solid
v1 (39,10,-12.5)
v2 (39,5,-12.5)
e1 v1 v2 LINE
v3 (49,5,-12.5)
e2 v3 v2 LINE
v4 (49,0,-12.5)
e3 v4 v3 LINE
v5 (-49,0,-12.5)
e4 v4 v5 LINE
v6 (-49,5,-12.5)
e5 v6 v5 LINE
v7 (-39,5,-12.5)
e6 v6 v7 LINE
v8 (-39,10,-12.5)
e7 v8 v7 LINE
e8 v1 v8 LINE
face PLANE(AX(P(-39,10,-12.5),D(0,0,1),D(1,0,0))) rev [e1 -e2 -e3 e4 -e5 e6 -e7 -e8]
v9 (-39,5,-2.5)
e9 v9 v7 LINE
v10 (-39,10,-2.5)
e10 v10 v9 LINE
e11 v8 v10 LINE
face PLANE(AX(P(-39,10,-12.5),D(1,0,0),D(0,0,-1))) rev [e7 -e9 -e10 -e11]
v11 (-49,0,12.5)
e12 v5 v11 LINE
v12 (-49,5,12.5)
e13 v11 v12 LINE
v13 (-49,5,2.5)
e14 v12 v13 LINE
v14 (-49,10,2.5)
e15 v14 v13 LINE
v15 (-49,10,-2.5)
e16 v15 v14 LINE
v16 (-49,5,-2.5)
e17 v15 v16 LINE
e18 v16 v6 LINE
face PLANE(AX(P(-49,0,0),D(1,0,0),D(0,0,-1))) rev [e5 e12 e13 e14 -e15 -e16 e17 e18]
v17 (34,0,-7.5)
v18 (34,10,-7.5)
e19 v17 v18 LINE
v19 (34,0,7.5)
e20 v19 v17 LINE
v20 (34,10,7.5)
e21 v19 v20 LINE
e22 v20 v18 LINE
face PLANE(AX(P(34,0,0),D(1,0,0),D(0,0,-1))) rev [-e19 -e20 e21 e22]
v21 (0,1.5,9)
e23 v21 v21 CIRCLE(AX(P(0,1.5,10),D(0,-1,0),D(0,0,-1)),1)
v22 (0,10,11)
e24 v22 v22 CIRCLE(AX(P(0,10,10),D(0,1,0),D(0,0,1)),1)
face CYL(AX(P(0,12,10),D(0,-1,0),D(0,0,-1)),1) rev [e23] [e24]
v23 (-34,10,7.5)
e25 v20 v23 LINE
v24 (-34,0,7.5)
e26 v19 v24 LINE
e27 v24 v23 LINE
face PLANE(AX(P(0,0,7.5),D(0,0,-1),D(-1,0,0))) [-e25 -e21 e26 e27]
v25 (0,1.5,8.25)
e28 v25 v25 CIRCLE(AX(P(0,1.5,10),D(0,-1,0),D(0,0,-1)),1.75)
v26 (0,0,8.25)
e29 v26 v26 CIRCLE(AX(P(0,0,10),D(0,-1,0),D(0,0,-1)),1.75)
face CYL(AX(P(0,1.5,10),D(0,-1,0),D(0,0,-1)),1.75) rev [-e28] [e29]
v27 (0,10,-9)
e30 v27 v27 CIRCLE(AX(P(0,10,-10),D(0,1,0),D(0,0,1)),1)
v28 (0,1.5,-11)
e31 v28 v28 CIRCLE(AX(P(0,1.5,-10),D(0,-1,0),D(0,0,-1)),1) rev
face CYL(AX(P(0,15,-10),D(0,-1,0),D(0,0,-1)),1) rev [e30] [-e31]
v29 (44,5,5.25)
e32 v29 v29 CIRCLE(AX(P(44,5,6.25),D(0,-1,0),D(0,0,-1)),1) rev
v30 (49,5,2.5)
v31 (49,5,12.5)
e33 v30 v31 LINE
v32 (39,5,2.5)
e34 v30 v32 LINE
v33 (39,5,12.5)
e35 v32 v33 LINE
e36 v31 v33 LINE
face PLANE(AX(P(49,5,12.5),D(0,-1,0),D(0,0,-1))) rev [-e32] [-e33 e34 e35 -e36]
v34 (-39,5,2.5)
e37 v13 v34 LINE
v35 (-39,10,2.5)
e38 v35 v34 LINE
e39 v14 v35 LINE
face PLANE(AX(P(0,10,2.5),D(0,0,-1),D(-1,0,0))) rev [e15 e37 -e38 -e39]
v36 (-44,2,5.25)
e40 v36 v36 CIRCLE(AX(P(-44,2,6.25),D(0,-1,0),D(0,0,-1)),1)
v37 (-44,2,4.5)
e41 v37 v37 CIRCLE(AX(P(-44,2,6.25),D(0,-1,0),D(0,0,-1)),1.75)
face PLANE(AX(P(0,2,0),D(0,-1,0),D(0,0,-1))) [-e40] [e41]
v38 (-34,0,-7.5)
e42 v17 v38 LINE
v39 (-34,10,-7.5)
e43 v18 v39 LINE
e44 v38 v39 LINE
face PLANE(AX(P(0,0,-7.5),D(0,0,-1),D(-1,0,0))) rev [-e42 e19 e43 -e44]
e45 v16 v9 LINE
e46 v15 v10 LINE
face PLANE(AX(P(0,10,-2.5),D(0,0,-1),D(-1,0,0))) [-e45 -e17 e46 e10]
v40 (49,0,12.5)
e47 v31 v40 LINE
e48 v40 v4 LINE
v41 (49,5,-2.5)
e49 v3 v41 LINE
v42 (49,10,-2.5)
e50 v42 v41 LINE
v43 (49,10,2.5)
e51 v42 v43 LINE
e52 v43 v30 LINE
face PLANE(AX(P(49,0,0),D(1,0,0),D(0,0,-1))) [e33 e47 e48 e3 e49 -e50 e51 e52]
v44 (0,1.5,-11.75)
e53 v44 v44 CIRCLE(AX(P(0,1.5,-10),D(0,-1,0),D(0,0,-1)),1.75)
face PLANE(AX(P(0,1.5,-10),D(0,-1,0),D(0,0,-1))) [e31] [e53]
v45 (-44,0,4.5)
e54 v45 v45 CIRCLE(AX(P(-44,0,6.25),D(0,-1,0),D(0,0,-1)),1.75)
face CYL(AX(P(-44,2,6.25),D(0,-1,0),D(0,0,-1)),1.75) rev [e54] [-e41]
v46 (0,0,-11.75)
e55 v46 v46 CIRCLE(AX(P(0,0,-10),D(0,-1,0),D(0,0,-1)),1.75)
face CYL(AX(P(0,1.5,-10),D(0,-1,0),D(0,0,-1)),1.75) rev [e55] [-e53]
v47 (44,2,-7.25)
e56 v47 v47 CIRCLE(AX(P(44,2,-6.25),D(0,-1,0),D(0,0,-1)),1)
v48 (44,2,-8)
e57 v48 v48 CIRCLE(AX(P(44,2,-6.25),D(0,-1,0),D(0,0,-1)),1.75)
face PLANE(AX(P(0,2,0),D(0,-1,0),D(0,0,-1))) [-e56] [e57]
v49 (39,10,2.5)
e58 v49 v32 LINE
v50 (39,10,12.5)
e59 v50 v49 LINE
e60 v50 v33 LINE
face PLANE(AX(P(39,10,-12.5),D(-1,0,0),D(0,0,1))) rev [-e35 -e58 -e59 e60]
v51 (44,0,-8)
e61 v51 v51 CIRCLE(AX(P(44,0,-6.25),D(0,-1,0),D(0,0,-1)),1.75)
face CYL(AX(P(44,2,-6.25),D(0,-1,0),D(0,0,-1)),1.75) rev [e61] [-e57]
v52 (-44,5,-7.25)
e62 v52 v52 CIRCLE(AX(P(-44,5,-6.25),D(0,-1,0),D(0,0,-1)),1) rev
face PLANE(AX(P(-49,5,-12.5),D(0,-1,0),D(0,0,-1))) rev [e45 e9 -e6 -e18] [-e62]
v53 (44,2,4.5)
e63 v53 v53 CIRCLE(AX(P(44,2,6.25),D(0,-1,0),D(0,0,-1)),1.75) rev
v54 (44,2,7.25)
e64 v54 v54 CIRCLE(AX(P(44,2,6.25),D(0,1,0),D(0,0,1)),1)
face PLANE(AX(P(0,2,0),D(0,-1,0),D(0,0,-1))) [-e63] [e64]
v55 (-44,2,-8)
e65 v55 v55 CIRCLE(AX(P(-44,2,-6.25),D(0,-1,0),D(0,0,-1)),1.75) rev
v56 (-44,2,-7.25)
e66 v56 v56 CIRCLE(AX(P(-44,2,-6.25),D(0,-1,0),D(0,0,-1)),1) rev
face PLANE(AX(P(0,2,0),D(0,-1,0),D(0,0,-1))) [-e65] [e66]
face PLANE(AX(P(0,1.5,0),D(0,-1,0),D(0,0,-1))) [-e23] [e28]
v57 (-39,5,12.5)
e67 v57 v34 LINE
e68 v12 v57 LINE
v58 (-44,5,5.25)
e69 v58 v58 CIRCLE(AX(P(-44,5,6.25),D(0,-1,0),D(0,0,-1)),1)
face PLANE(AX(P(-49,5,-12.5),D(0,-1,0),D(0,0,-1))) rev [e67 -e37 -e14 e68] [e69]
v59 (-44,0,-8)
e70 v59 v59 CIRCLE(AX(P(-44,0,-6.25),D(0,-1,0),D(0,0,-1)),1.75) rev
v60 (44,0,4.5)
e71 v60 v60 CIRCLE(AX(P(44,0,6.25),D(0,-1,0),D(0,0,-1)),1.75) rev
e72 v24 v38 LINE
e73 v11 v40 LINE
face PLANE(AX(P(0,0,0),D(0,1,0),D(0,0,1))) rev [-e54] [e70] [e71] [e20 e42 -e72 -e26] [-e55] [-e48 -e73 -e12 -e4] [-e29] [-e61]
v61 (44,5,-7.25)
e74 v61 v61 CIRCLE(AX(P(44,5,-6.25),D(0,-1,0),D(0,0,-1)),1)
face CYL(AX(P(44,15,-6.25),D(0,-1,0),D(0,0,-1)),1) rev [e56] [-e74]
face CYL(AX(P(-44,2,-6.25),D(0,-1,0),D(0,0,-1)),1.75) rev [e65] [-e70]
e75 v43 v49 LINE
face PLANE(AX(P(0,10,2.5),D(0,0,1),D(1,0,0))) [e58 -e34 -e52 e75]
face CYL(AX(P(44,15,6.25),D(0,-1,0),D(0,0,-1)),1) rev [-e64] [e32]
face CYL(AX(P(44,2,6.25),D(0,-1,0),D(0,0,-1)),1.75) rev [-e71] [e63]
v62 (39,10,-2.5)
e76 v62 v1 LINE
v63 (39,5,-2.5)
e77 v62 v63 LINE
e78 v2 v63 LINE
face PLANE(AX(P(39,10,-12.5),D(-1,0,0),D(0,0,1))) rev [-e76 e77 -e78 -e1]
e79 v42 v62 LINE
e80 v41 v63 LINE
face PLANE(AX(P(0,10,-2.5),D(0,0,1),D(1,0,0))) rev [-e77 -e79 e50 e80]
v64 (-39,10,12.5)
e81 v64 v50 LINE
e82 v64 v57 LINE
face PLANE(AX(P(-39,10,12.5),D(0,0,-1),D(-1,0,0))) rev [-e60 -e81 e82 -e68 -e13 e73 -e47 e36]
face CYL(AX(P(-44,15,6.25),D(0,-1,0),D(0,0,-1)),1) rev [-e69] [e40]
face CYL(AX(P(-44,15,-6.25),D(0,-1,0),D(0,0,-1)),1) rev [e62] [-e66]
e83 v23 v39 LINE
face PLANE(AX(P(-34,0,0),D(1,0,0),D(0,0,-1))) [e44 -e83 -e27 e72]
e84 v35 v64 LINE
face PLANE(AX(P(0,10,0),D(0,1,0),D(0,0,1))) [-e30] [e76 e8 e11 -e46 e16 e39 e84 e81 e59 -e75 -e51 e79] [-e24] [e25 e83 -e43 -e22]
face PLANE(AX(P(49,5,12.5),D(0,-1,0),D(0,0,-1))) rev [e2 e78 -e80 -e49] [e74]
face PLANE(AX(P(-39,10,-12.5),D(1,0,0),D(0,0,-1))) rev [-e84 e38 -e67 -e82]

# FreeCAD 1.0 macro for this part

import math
import FreeCAD as App
import Part
import Sketcher
from FreeCAD import Vector


def add_polygon(sketch, points):
    """Adds a closed chain of lines whose ends are joined by coincident constraints."""
    first, n = sketch.GeometryCount, len(points)
    for a, b in zip(points, points[1:] + points[:1]):
        sketch.addGeometry(Part.LineSegment(App.Vector(*a, 0), App.Vector(*b, 0)), False)
    for i in range(n):
        sketch.addConstraint(Sketcher.Constraint("Coincident", first + i, 2, first + (i + 1) % n, 1))

doc = App.newDocument("Part")
params = doc.addObject("Spreadsheet::Sheet", "Params")
for row, (alias, value) in enumerate([
    ("sketch1_width", "78 mm"),
    ("sketch1_height", "25 mm"),
    ("pad1_length", "10 mm"),
    ("sketch2_width", "68 mm"),
    ("sketch2_height", "15 mm"),
    ("pocket1_length", "10 mm"),
    ("sketch3_width", "5 mm"),
    ("sketch3_height", "25 mm"),
    ("pad2_length", "10 mm"),
    ("sketch4_width", "5 mm"),
    ("sketch4_height", "25 mm"),
    ("pad3_length", "10 mm"),
    ("sketch5_width", "10 mm"),
    ("sketch5_height", "5 mm"),
    ("pad4_length", "5 mm"),
    ("sketch6_diameter", "3.5 mm"),
    ("pocket2_length", "2 mm"),
    ("sketch7_diameter", "2 mm"),
    ("pocket3_length", "13 mm"),
    ("sketch8_radius", "1.75 mm"),
    ("pocket4_length", "1.5 mm"),
    ("sketch9_diameter", "2 mm"),
    ("pocket5_length", "10.5 mm"),
    ("sketch10_diameter", "2 mm"),
    ("pocket6_length", "15 mm"),
    ("sketch11_diameter", "3.5 mm"),
    ("pocket7_length", "1.5 mm"),
], start=1):
    params.set(f"A{row}", alias)
    params.set(f"B{row}", "=" + value)
    params.setAlias(f"B{row}", alias)

body = doc.addObject("PartDesign::Body", "Body")

# Sketch on XZ plane
sketch1 = body.newObject("Sketcher::SketchObject", "Sketch")
sketch1.AttachmentSupport = (doc.getObject("XZ_Plane"), [""])
sketch1.MapMode = "FlatFace"
add_polygon(sketch1, [(-39, -12.5), (-39, 12.5), (39, 12.5), (39, -12.5)])  # lines 0-3
sketch1.addConstraint([
    Sketcher.Constraint("Vertical", 0),
    Sketcher.Constraint("Horizontal", 1),
    Sketcher.Constraint("Vertical", 2),
    Sketcher.Constraint("Horizontal", 3),
    Sketcher.Constraint("Symmetric", 0, 2, 2, 2, -1, 1),
    Sketcher.Constraint("DistanceX", 1, 1, 1, 2, 78.0),
    Sketcher.Constraint("DistanceY", 0, 1, 0, 2, 25.0),
])
sketch1.setExpression("Constraints[9]", "Params.sketch1_width")
sketch1.setExpression("Constraints[10]", "Params.sketch1_height")
pad1 = body.newObject("PartDesign::Pad", "Pad")
pad1.Profile = sketch1
pad1.setExpression("Length", "Params.pad1_length")
pad1.Reversed = True

# Sketch on XZ plane
sketch2 = body.newObject("Sketcher::SketchObject", "Sketch001")
sketch2.AttachmentSupport = (doc.getObject("XZ_Plane"), [""])
sketch2.MapMode = "FlatFace"
sketch2.AttachmentOffset = App.Placement(Vector(0, 0, -10), App.Rotation())
add_polygon(sketch2, [(-34, -7.5), (-34, 7.5), (34, 7.5), (34, -7.5)])  # lines 0-3
sketch2.addConstraint([
    Sketcher.Constraint("Vertical", 0),
    Sketcher.Constraint("Horizontal", 1),
    Sketcher.Constraint("Vertical", 2),
    Sketcher.Constraint("Horizontal", 3),
    Sketcher.Constraint("Symmetric", 0, 2, 2, 2, -1, 1),
    Sketcher.Constraint("DistanceX", 1, 1, 1, 2, 68.0),
    Sketcher.Constraint("DistanceY", 0, 1, 0, 2, 15.0),
])
sketch2.setExpression("Constraints[9]", "Params.sketch2_width")
sketch2.setExpression("Constraints[10]", "Params.sketch2_height")
pocket1 = body.newObject("PartDesign::Pocket", "Pocket")
pocket1.Profile = sketch2
pocket1.setExpression("Length", "Params.pocket1_length")
pocket1.Reversed = True

# Sketch on YZ plane
sketch3 = body.newObject("Sketcher::SketchObject", "Sketch002")
sketch3.AttachmentSupport = (doc.getObject("YZ_Plane"), [""])
sketch3.MapMode = "FlatFace"
sketch3.AttachmentOffset = App.Placement(Vector(0, 0, -39), App.Rotation())
add_polygon(sketch3, [(5, -12.5), (0, -12.5), (0, 12.5), (5, 12.5)])  # lines 0-3
sketch3.addConstraint([
    Sketcher.Constraint("Horizontal", 0),
    Sketcher.Constraint("Vertical", 1),
    Sketcher.Constraint("Horizontal", 2),
    Sketcher.Constraint("Vertical", 3),
    Sketcher.Constraint("Symmetric", 0, 2, 1, 2, -1, 1),
    Sketcher.Constraint("DistanceX", 0, 2, 0, 1, 5.0),
    Sketcher.Constraint("DistanceY", 1, 1, 1, 2, 25.0),
])
sketch3.setExpression("Constraints[9]", "Params.sketch3_width")
sketch3.setExpression("Constraints[10]", "Params.sketch3_height")
pad2 = body.newObject("PartDesign::Pad", "Pad001")
pad2.Profile = sketch3
pad2.setExpression("Length", "Params.pad2_length")
pad2.Reversed = True

# Sketch on YZ plane
sketch4 = body.newObject("Sketcher::SketchObject", "Sketch003")
sketch4.AttachmentSupport = (doc.getObject("YZ_Plane"), [""])
sketch4.MapMode = "FlatFace"
sketch4.AttachmentOffset = App.Placement(Vector(0, 0, 39), App.Rotation())
add_polygon(sketch4, [(5, 12.5), (0, 12.5), (0, -12.5), (5, -12.5)])  # lines 0-3
sketch4.addConstraint([
    Sketcher.Constraint("Horizontal", 0),
    Sketcher.Constraint("Vertical", 1),
    Sketcher.Constraint("Horizontal", 2),
    Sketcher.Constraint("Vertical", 3),
    Sketcher.Constraint("Symmetric", 0, 2, 1, 2, -1, 1),
    Sketcher.Constraint("DistanceX", 0, 2, 0, 1, 5.0),
    Sketcher.Constraint("DistanceY", 1, 2, 1, 1, 25.0),
])
sketch4.setExpression("Constraints[9]", "Params.sketch4_width")
sketch4.setExpression("Constraints[10]", "Params.sketch4_height")
pad3 = body.newObject("PartDesign::Pad", "Pad002")
pad3.Profile = sketch4
pad3.setExpression("Length", "Params.pad3_length")

# Sketch on XZ plane
sketch5 = body.newObject("Sketcher::SketchObject", "Sketch004")
sketch5.AttachmentSupport = (doc.getObject("XZ_Plane"), [""])
sketch5.MapMode = "FlatFace"
sketch5.AttachmentOffset = App.Placement(Vector(0, 0, -5), App.Rotation())
add_polygon(sketch5, [(39, -2.5), (39, 2.5), (49, 2.5), (49, -2.5)])  # lines 0-3
add_polygon(sketch5, [(-49, -2.5), (-49, 2.5), (-39, 2.5), (-39, -2.5)])  # lines 4-7
sketch5.addConstraint([
    Sketcher.Constraint("Vertical", 0),
    Sketcher.Constraint("Horizontal", 1),
    Sketcher.Constraint("Vertical", 2),
    Sketcher.Constraint("Horizontal", 3),
    Sketcher.Constraint("Vertical", 4),
    Sketcher.Constraint("Horizontal", 5),
    Sketcher.Constraint("Vertical", 6),
    Sketcher.Constraint("Horizontal", 7),
    Sketcher.Constraint("Symmetric", 2, 2, 4, 2, -1, 1),
    Sketcher.Constraint("Symmetric", 0, 2, 6, 2, -1, 1),
    Sketcher.Constraint("Horizontal", 1, 2, 4, 2),
    Sketcher.Constraint("DistanceX", 1, 1, 1, 2, 10.0),
    Sketcher.Constraint("DistanceY", 0, 1, 0, 2, 5.0),
    Sketcher.Constraint("DistanceX", -1, 1, 0, 2, 39.0),
])
sketch5.setExpression("Constraints[19]", "Params.sketch5_width")
sketch5.setExpression("Constraints[20]", "Params.sketch5_height")
pad4 = body.newObject("PartDesign::Pad", "Pad003")
pad4.Profile = sketch5
pad4.setExpression("Length", "Params.pad4_length")
pad4.Reversed = True

# Sketch on XZ plane
sketch6 = body.newObject("Sketcher::SketchObject", "Sketch005")
sketch6.AttachmentSupport = (doc.getObject("XZ_Plane"), [""])
sketch6.MapMode = "FlatFace"
sketch6.addGeometry([
    Part.Circle(Vector(-44, 6.25, 0), Vector(0, 0, 1), 1.75),
    Part.Circle(Vector(-44, -6.25, 0), Vector(0, 0, 1), 1.75),
    Part.Circle(Vector(44, 6.25, 0), Vector(0, 0, 1), 1.75),
    Part.Circle(Vector(44, -6.25, 0), Vector(0, 0, 1), 1.75),
], False)
sketch6.addConstraint([
    Sketcher.Constraint("Equal", 0, 1),
    Sketcher.Constraint("Equal", 1, 2),
    Sketcher.Constraint("Equal", 2, 3),
    Sketcher.Constraint("Symmetric", 1, 3, 2, 3, -1, 1),
    Sketcher.Constraint("Symmetric", 0, 3, 3, 3, -1, 1),
    Sketcher.Constraint("Symmetric", 0, 3, 2, 3, -2),
    Sketcher.Constraint("Diameter", 0, 3.5),
    Sketcher.Constraint("DistanceX", 0, 3, -1, 1, 44.0),
    Sketcher.Constraint("DistanceY", 1, 3, 0, 3, 12.5),
])
sketch6.setExpression("Constraints[6]", "Params.sketch6_diameter")
pocket2 = body.newObject("PartDesign::Pocket", "Pocket001")
pocket2.Profile = sketch6
pocket2.setExpression("Length", "Params.pocket2_length")

# Sketch on XZ plane
sketch7 = body.newObject("Sketcher::SketchObject", "Sketch006")
sketch7.AttachmentSupport = (doc.getObject("XZ_Plane"), [""])
sketch7.MapMode = "FlatFace"
sketch7.AttachmentOffset = App.Placement(Vector(0, 0, -2), App.Rotation())
sketch7.addGeometry([
    Part.Circle(Vector(-44, 6.25, 0), Vector(0, 0, 1), 1),
    Part.Circle(Vector(-44, -6.25, 0), Vector(0, 0, 1), 1),
    Part.Circle(Vector(44, 6.25, 0), Vector(0, 0, 1), 1),
    Part.Circle(Vector(44, -6.25, 0), Vector(0, 0, 1), 1),
], False)
sketch7.addConstraint([
    Sketcher.Constraint("Equal", 0, 1),
    Sketcher.Constraint("Equal", 1, 2),
    Sketcher.Constraint("Equal", 2, 3),
    Sketcher.Constraint("Symmetric", 1, 3, 2, 3, -1, 1),
    Sketcher.Constraint("Symmetric", 0, 3, 3, 3, -1, 1),
    Sketcher.Constraint("Symmetric", 0, 3, 2, 3, -2),
    Sketcher.Constraint("Diameter", 0, 2.0),
    Sketcher.Constraint("DistanceX", 0, 3, -1, 1, 44.0),
    Sketcher.Constraint("DistanceY", 1, 3, 0, 3, 12.5),
])
sketch7.setExpression("Constraints[6]", "Params.sketch7_diameter")
pocket3 = body.newObject("PartDesign::Pocket", "Pocket002")
pocket3.Profile = sketch7
pocket3.setExpression("Length", "Params.pocket3_length")

# Sketch on XZ plane
sketch8 = body.newObject("Sketcher::SketchObject", "Sketch007")
sketch8.AttachmentSupport = (doc.getObject("XZ_Plane"), [""])
sketch8.MapMode = "FlatFace"
sketch8.addGeometry([
    Part.ArcOfCircle(Part.Circle(Vector(0, 10, 0), Vector(0, 0, 1), 1.75), math.radians(90), math.radians(270)),
    Part.ArcOfCircle(Part.Circle(Vector(0, 10, 0), Vector(0, 0, 1), 1.75), math.radians(-90), math.radians(0)),
    Part.ArcOfCircle(Part.Circle(Vector(0, 10, 0), Vector(0, 0, 1), 1.75), math.radians(0), math.radians(90)),
], False)
sketch8.addConstraint([
    Sketcher.Constraint("Tangent", 0, 2, 1, 1),
    Sketcher.Constraint("Tangent", 1, 2, 2, 1),
    Sketcher.Constraint("Tangent", 2, 2, 0, 1),
    Sketcher.Constraint("PointOnObject", 0, 3, -2),
    Sketcher.Constraint("PointOnObject", 0, 2, -2),
    Sketcher.Constraint("PointOnObject", 2, 2, -2),
    Sketcher.Constraint("Horizontal", 2, 3, 1, 2),
    Sketcher.Constraint("Radius", 0, 1.75),
    Sketcher.Constraint("DistanceY", -1, 1, 0, 3, 10.0),
])
sketch8.setExpression("Constraints[7]", "Params.sketch8_radius")
pocket4 = body.newObject("PartDesign::Pocket", "Pocket003")
pocket4.Profile = sketch8
pocket4.setExpression("Length", "Params.pocket4_length")

# Sketch on XZ plane
sketch9 = body.newObject("Sketcher::SketchObject", "Sketch008")
sketch9.AttachmentSupport = (doc.getObject("XZ_Plane"), [""])
sketch9.MapMode = "FlatFace"
sketch9.AttachmentOffset = App.Placement(Vector(0, 0, -1.5), App.Rotation())
sketch9.addGeometry(Part.Circle(Vector(0, 10, 0), Vector(0, 0, 1), 1), False)
sketch9.addConstraint([
    Sketcher.Constraint("PointOnObject", 0, 3, -2),
    Sketcher.Constraint("Diameter", 0, 2.0),
    Sketcher.Constraint("DistanceY", -1, 1, 0, 3, 10.0),
])
sketch9.setExpression("Constraints[1]", "Params.sketch9_diameter")
pocket5 = body.newObject("PartDesign::Pocket", "Pocket004")
pocket5.Profile = sketch9
pocket5.setExpression("Length", "Params.pocket5_length")

# Sketch on XZ plane
sketch10 = body.newObject("Sketcher::SketchObject", "Sketch009")
sketch10.AttachmentSupport = (doc.getObject("XZ_Plane"), [""])
sketch10.MapMode = "FlatFace"
sketch10.addGeometry(Part.Circle(Vector(0, -10, 0), Vector(0, 0, 1), 1), False)
sketch10.addConstraint([
    Sketcher.Constraint("PointOnObject", 0, 3, -2),
    Sketcher.Constraint("Diameter", 0, 2.0),
    Sketcher.Constraint("DistanceY", 0, 3, -1, 1, 10.0),
])
sketch10.setExpression("Constraints[1]", "Params.sketch10_diameter")
pocket6 = body.newObject("PartDesign::Pocket", "Pocket005")
pocket6.Profile = sketch10
pocket6.setExpression("Length", "Params.pocket6_length")

# Sketch on XZ plane
sketch11 = body.newObject("Sketcher::SketchObject", "Sketch010")
sketch11.AttachmentSupport = (doc.getObject("XZ_Plane"), [""])
sketch11.MapMode = "FlatFace"
sketch11.addGeometry(Part.Circle(Vector(0, -10, 0), Vector(0, 0, 1), 1.75), False)
sketch11.addConstraint([
    Sketcher.Constraint("PointOnObject", 0, 3, -2),
    Sketcher.Constraint("Diameter", 0, 3.5),
    Sketcher.Constraint("DistanceY", 0, 3, -1, 1, 10.0),
])
sketch11.setExpression("Constraints[1]", "Params.sketch11_diameter")
pocket7 = body.newObject("PartDesign::Pocket", "Pocket006")
pocket7.Profile = sketch11
pocket7.setExpression("Length", "Params.pocket7_length")

doc.recompute()
